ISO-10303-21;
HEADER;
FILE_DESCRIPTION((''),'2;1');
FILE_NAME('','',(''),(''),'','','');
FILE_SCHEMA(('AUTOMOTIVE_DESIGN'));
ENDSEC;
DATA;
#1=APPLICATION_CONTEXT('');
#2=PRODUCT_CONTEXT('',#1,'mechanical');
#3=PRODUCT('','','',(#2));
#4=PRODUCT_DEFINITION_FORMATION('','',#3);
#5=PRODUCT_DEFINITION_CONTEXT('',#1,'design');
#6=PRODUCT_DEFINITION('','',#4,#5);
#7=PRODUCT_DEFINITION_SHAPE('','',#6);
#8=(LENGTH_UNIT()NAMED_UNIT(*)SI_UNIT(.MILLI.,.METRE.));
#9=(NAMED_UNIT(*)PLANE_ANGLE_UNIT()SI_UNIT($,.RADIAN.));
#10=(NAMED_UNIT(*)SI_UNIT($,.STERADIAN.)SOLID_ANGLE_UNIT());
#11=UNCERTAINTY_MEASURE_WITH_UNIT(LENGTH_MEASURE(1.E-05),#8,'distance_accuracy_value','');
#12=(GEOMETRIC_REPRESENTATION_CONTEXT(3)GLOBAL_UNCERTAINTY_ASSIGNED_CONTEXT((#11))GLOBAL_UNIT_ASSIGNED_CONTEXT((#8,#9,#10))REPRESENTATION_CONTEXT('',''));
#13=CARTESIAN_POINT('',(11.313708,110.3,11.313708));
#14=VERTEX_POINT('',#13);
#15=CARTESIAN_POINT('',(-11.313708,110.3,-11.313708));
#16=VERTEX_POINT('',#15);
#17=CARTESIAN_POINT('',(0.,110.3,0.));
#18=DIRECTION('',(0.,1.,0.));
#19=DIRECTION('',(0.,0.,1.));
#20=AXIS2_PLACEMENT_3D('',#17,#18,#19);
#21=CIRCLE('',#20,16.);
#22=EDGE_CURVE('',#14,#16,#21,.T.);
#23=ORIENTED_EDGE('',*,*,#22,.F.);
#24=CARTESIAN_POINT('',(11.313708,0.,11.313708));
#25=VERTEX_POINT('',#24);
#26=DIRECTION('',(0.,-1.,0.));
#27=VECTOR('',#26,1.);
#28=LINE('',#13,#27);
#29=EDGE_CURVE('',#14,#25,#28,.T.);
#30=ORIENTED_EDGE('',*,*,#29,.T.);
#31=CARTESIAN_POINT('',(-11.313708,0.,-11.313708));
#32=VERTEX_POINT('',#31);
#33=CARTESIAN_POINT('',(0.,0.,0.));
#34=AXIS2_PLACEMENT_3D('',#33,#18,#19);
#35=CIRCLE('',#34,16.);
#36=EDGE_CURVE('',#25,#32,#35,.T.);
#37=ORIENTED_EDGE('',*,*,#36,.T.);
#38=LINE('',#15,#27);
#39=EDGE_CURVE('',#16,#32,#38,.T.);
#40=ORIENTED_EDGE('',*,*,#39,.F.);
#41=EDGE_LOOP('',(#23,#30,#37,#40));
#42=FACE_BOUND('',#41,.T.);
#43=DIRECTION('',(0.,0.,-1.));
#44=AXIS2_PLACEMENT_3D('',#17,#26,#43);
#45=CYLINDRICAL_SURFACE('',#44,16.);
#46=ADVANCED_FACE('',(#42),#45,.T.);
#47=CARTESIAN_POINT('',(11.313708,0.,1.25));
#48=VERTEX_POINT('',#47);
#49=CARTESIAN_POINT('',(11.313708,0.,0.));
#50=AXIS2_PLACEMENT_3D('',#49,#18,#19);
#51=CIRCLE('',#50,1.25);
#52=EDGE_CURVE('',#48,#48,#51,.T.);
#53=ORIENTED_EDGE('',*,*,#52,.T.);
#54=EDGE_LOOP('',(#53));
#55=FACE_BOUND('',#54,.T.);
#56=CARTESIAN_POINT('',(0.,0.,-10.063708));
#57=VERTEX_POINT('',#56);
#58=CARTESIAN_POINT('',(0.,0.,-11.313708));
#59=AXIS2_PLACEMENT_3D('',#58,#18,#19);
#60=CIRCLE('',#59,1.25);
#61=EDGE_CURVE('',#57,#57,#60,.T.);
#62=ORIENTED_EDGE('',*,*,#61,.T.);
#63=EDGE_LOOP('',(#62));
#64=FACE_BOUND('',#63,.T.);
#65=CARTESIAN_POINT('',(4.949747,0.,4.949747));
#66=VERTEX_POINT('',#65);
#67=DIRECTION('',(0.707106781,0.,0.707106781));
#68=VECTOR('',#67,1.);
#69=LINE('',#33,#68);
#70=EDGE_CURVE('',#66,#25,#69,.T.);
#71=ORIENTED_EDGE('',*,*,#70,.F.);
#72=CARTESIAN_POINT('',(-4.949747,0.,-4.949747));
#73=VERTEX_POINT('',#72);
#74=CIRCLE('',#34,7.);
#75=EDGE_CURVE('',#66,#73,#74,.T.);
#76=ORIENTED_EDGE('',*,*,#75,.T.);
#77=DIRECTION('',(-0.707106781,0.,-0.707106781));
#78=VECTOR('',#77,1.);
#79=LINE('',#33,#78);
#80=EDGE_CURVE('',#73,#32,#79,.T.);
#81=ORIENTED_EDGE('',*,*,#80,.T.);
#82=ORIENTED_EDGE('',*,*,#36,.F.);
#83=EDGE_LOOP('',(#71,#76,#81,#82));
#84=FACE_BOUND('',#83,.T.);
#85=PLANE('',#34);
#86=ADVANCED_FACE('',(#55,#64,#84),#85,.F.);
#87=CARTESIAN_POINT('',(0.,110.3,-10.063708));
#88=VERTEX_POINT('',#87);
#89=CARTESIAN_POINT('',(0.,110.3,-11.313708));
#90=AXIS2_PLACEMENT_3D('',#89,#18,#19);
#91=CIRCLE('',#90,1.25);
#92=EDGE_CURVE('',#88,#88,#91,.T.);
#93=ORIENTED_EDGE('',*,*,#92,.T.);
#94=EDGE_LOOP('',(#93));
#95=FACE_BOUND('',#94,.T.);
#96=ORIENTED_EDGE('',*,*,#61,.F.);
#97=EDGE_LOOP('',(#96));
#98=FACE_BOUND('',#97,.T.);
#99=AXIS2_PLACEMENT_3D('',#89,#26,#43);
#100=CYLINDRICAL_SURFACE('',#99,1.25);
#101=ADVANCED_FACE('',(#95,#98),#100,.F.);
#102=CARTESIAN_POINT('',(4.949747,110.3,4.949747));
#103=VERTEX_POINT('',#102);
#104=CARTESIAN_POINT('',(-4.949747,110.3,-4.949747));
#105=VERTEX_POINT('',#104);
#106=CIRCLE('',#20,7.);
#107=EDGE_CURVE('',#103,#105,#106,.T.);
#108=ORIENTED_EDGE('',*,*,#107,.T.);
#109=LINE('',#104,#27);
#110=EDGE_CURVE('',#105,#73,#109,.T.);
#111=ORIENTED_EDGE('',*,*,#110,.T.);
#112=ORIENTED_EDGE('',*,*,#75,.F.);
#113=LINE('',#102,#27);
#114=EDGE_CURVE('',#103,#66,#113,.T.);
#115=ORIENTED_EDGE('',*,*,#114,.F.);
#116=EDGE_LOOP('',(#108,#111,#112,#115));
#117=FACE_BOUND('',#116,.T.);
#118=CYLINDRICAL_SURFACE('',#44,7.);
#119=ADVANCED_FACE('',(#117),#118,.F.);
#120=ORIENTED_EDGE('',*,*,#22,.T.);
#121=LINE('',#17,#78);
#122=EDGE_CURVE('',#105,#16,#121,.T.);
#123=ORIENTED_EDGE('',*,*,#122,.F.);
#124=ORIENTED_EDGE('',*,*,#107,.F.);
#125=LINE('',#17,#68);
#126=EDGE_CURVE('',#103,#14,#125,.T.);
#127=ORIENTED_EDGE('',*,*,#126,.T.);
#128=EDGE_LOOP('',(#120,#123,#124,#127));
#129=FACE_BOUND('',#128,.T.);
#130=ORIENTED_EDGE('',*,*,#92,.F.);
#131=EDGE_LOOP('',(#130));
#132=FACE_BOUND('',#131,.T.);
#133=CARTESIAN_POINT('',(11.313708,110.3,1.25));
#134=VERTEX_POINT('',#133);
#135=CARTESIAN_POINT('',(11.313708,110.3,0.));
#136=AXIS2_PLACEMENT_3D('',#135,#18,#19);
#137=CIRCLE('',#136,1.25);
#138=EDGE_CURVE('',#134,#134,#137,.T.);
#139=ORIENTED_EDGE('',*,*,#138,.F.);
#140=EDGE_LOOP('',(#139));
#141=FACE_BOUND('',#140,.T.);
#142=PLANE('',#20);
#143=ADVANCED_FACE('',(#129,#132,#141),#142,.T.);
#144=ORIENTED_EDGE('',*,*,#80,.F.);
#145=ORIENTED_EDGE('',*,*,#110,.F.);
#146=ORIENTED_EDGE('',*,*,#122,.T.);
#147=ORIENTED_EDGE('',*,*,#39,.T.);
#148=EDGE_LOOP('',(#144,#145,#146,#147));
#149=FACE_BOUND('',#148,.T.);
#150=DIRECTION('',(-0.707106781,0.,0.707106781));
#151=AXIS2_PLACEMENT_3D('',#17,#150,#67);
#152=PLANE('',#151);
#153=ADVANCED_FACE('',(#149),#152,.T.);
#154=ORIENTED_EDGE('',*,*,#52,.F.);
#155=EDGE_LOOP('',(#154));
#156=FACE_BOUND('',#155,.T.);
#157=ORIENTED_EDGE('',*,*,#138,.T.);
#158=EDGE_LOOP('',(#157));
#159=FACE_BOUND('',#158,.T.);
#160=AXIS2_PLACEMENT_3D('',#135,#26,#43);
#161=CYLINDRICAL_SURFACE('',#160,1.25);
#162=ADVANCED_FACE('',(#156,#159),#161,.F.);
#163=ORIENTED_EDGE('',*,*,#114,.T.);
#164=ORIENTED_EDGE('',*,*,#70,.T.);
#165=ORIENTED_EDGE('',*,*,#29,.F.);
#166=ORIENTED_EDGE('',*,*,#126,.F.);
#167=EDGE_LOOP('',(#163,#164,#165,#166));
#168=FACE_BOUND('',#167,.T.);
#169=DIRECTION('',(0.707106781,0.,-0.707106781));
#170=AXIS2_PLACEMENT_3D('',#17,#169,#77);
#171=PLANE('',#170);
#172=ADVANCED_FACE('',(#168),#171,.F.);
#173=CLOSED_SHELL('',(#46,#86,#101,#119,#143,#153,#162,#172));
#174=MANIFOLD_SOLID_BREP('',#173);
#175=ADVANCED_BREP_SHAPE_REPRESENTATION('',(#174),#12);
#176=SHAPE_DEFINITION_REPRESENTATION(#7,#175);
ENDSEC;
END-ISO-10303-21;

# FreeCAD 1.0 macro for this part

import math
import FreeCAD as App
import Part
import Sketcher
Q = App.Units.Quantity

doc = App.newDocument("Part")
body = doc.addObject("PartDesign::Body", "Body")

# Sketch on XZ plane
sketch1 = body.newObject("Sketcher::SketchObject", "Sketch")
sketch1.AttachmentSupport = (doc.getObject("XZ_Plane"), [""])
sketch1.MapMode = "FlatFace"
sketch1.addGeometry([
    Part.ArcOfCircle(Part.Circle(App.Vector(0, 0, 0), App.Vector(0, 0, 1), 7), math.radians(-135), math.radians(0)),  # 0
    Part.ArcOfCircle(Part.Circle(App.Vector(0, 0, 0), App.Vector(0, 0, 1), 7), math.radians(0), math.radians(45)),  # 1
    Part.LineSegment(App.Vector(4.949747, 4.949747, 0), App.Vector(11.313708, 11.313708, 0)),  # 2
    Part.ArcOfCircle(Part.Circle(App.Vector(0, 0, 0), App.Vector(0, 0, 1), 16), math.radians(0), math.radians(45)),  # 3
    Part.ArcOfCircle(Part.Circle(App.Vector(0, 0, 0), App.Vector(0, 0, 1), 16), math.radians(-135), math.radians(0)),  # 4
    Part.LineSegment(App.Vector(-11.313708, -11.313708, 0), App.Vector(-4.949747, -4.949747, 0)),  # 5
    Part.ArcOfCircle(Part.Circle(App.Vector(11.313708, 0, 0), App.Vector(0, 0, 1), 1.25), math.radians(93.166787), math.radians(266.833213)),  # 6
    Part.ArcOfCircle(Part.Circle(App.Vector(11.313708, 0, 0), App.Vector(0, 0, 1), 1.25), math.radians(-93.166787), math.radians(0)),  # 7
    Part.ArcOfCircle(Part.Circle(App.Vector(11.313708, 0, 0), App.Vector(0, 0, 1), 1.25), math.radians(0), math.radians(93.166787)),  # 8
    Part.ArcOfCircle(Part.Circle(App.Vector(0, -11.313708, 0), App.Vector(0, 0, 1), 1.25), math.radians(3.166787), math.radians(176.833213)),  # 9
    Part.ArcOfCircle(Part.Circle(App.Vector(0, -11.313708, 0), App.Vector(0, 0, 1), 1.25), math.radians(176.833213), math.radians(360)),  # 10
    Part.ArcOfCircle(Part.Circle(App.Vector(-0.000001, -11.313709, 0), App.Vector(0, 0, 1), 1.250001), math.radians(0.000001), math.radians(3.166785)),  # 11
], False)
sketch1.addConstraint([
    Sketcher.Constraint("Tangent", 0, 2, 1, 1),
    Sketcher.Constraint("Coincident", 1, 2, 2, 1),
    Sketcher.Constraint("Coincident", 2, 2, 3, 2),
    Sketcher.Constraint("Tangent", 3, 1, 4, 2),
    Sketcher.Constraint("Coincident", 4, 1, 5, 1),
    Sketcher.Constraint("Coincident", 5, 2, 0, 1),
    Sketcher.Constraint("Tangent", 6, 2, 7, 1),
    Sketcher.Constraint("Tangent", 7, 2, 8, 1),
    Sketcher.Constraint("Tangent", 8, 2, 6, 1),
    Sketcher.Constraint("Tangent", 9, 2, 10, 1),
    Sketcher.Constraint("Tangent", 10, 2, 11, 1),
    Sketcher.Constraint("Tangent", 11, 2, 9, 1),
    Sketcher.Constraint("Coincident", 0, 3, -1, 1),
    Sketcher.Constraint("Coincident", 3, 3, -1, 1),
    Sketcher.Constraint("Equal", 0, 1),
    Sketcher.Constraint("Equal", 3, 4),
    Sketcher.Constraint("Equal", 8, 9),
    Sketcher.Constraint("Symmetric", 9, 2, 11, 2, -2),
    Sketcher.Constraint("Symmetric", 6, 2, 8, 2, -1),
    Sketcher.Constraint("PointOnObject", 0, 2, -1),
    Sketcher.Constraint("PointOnObject", 3, 1, -1),
    Sketcher.Constraint("PointOnObject", 7, 2, -1),
    Sketcher.Constraint("Parallel", 2, 5),
    Sketcher.Constraint("Horizontal", 11, 3, 4, 1),
    Sketcher.Constraint("Horizontal", 4, 1, 10, 2),
    Sketcher.Constraint("Vertical", 8, 3, 2, 2),
    Sketcher.Constraint("Radius", 0, Q("7 mm")),
    Sketcher.Constraint("Radius", 3, Q("16 mm")),
    Sketcher.Constraint("Angle", 2, Q("45 deg")),
    Sketcher.Constraint("Radius", 6, Q("1.25 mm")),
    Sketcher.Constraint("DistanceX", -1, 1, 6, 3, Q("11.313708 mm")),
    Sketcher.Constraint("DistanceY", 9, 3, -1, 1, Q("11.313708 mm")),
    Sketcher.Constraint("DistanceY", 6, 2, -1, 1, Q("1.248091 mm")),
    Sketcher.Constraint("DistanceX", 9, 2, -1, 1, Q("1.248091 mm")),
])
pad1 = body.newObject("PartDesign::Pad", "Pad")
pad1.Profile = sketch1
pad1.Length = 110.3
pad1.Reversed = True

doc.recompute()
